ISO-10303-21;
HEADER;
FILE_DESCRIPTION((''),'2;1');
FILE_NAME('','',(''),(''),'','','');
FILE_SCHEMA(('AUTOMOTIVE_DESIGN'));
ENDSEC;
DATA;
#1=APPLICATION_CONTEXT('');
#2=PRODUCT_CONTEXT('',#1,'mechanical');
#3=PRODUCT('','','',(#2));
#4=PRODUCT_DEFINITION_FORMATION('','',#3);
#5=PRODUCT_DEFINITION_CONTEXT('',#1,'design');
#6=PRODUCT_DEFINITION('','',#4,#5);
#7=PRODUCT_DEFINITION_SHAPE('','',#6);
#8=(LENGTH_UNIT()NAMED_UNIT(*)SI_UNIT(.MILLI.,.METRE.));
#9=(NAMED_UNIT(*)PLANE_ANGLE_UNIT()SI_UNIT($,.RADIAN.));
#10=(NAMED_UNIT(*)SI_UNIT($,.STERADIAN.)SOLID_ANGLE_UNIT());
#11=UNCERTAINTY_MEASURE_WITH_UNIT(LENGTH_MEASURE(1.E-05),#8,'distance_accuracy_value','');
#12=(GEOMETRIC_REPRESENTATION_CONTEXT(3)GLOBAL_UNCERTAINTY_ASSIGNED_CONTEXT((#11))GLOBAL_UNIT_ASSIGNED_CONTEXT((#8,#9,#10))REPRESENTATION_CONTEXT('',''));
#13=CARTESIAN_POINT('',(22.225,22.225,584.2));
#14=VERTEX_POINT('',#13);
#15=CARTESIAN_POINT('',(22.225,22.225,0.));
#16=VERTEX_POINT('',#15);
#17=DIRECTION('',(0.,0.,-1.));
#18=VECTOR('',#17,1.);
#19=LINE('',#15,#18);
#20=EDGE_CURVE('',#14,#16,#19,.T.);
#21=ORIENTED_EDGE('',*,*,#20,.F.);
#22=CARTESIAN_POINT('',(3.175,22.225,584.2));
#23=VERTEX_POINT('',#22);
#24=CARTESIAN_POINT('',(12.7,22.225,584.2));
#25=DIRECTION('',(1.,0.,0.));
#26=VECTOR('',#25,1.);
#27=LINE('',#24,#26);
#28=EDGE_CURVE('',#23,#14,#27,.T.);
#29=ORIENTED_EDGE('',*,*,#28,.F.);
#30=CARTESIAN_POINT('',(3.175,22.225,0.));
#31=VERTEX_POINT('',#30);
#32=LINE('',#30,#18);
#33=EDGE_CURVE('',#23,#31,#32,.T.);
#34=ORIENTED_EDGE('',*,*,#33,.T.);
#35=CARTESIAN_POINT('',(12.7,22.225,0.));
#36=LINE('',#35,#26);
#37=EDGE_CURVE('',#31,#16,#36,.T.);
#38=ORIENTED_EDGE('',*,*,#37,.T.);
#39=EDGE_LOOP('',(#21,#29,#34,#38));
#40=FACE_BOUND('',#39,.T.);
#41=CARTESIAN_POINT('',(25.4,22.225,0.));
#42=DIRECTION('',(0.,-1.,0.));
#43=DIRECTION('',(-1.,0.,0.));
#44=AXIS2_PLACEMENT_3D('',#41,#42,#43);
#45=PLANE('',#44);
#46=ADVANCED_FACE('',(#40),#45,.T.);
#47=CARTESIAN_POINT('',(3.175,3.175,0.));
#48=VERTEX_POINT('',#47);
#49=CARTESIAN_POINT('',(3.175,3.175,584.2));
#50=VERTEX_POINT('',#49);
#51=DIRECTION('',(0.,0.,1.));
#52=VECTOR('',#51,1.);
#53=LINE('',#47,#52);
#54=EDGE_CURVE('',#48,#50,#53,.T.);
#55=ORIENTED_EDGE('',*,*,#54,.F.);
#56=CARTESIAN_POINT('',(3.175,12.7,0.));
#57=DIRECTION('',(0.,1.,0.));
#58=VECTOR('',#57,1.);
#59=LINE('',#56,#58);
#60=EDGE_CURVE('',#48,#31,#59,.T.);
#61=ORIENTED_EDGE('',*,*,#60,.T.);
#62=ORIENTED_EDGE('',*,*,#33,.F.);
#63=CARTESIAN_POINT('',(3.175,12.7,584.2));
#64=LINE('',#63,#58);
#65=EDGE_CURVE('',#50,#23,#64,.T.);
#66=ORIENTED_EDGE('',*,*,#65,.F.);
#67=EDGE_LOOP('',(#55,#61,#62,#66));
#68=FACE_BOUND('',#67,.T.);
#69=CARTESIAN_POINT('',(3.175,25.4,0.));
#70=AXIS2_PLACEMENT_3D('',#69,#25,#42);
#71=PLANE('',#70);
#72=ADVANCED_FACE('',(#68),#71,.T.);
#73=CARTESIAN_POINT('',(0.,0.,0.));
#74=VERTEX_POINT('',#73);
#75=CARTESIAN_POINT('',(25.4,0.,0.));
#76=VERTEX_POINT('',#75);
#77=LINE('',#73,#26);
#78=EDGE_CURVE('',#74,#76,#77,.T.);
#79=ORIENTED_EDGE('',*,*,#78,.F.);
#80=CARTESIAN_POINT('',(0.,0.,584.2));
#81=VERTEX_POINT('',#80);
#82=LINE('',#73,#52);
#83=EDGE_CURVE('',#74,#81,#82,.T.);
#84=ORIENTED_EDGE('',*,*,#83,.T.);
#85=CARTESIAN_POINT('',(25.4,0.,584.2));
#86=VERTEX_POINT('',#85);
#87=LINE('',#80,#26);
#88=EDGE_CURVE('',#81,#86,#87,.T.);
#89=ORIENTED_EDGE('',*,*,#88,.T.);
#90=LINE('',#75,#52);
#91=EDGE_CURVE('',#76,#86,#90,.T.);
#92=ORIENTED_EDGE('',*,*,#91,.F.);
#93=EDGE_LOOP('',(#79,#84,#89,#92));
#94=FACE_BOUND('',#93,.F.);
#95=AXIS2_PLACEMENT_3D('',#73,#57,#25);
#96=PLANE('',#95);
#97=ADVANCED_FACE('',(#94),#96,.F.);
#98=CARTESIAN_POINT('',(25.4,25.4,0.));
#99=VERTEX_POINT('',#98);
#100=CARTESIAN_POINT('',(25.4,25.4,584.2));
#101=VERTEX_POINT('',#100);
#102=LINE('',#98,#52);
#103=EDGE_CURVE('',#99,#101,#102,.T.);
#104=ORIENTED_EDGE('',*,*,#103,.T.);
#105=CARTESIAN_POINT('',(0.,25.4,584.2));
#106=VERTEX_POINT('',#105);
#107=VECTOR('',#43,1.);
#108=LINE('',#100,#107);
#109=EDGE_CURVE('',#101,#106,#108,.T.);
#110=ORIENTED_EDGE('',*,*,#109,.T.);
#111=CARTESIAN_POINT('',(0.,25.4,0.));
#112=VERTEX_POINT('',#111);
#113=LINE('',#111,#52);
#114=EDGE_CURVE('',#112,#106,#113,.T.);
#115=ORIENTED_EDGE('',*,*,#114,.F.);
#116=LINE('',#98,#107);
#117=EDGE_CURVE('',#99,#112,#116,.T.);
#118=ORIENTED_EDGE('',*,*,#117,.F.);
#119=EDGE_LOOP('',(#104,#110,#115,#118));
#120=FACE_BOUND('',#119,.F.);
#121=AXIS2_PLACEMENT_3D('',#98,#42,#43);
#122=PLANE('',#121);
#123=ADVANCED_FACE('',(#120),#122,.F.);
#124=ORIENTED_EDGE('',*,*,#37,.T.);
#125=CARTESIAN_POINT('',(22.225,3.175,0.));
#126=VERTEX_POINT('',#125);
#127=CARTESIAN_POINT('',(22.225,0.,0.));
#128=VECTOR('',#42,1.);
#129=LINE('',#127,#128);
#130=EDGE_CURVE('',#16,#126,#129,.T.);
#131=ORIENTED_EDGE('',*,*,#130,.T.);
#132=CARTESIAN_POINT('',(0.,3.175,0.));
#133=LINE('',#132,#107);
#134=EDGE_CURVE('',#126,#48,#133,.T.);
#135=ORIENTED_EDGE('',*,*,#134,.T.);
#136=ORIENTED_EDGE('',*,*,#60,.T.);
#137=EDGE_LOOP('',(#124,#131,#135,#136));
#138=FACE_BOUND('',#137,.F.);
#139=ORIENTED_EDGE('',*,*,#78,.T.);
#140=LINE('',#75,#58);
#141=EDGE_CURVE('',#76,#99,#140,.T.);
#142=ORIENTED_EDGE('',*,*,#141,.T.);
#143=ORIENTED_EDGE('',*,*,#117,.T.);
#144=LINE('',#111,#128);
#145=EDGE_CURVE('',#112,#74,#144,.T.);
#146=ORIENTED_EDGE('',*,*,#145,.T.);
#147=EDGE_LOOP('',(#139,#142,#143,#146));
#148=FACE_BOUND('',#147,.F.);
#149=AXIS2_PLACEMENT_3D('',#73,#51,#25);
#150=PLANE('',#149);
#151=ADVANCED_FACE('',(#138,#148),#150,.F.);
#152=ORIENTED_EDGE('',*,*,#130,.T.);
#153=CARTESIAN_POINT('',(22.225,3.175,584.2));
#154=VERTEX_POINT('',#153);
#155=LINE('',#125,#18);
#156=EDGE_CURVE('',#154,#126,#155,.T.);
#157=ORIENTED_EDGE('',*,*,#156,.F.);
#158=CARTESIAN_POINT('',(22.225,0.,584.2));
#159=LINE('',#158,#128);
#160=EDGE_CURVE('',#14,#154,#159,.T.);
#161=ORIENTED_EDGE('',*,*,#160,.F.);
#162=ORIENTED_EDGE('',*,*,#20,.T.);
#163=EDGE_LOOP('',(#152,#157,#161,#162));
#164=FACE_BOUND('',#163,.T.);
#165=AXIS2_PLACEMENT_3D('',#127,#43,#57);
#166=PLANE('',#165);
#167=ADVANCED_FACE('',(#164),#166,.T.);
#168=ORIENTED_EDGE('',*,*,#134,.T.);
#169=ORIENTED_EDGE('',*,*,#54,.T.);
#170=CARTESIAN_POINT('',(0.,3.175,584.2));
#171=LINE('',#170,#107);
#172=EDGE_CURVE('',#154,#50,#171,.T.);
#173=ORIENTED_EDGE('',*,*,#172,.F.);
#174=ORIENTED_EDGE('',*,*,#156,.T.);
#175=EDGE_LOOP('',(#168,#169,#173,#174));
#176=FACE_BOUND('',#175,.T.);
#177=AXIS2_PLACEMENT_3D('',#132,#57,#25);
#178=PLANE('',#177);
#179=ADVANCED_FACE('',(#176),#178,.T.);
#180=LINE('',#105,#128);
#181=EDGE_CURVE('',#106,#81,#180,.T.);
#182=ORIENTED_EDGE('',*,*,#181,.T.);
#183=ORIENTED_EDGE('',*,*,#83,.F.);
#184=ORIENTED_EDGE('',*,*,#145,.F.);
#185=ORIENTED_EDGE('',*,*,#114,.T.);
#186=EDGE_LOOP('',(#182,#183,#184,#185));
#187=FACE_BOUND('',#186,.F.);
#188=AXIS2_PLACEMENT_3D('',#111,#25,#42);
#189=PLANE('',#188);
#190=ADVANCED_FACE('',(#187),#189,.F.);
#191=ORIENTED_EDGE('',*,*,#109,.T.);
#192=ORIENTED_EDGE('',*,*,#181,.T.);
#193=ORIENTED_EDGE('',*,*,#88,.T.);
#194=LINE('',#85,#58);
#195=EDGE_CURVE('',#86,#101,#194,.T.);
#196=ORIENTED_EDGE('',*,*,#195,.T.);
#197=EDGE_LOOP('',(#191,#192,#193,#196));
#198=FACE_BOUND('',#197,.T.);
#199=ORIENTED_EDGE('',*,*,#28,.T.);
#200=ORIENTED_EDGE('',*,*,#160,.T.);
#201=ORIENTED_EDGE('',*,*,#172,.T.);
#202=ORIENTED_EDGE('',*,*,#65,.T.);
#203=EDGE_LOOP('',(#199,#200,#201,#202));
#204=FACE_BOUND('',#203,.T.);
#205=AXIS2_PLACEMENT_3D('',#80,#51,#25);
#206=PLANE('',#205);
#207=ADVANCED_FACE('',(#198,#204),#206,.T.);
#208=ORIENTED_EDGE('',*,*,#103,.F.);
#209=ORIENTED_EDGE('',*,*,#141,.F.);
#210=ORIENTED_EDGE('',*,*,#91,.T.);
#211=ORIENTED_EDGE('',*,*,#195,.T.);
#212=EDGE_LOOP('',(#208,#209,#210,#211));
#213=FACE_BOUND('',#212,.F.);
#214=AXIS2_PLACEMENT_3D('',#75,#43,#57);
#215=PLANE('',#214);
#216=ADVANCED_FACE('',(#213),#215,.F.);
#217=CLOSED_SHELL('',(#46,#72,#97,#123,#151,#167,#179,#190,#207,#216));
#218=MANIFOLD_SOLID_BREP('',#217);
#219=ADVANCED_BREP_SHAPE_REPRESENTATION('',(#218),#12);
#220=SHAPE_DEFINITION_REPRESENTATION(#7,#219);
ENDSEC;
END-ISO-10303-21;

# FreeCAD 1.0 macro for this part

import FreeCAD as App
import Part
import Sketcher
from FreeCAD import Vector
Q = App.Units.Quantity


def faces_at(feature, points):
    """Names of the faces that lie closest to the given points."""
    faces = feature.Shape.Faces
    near = lambda p: min(range(len(faces)), key=lambda i: faces[i].distToShape(Part.Vertex(*p))[0])
    return sorted({f"Face{near(p) + 1}" for p in points})

doc = App.newDocument("Part")
body = doc.addObject("PartDesign::Body", "Body")

# Sketch on XY plane
sketch1 = doc.addObject("Sketcher::SketchObject", "Sketch")
body.addObject(sketch1)
sketch1.AttachmentSupport = (doc.XY_Plane, [""])
sketch1.MapMode = "FlatFace"
sketch1.addGeometry(Part.LineSegment(Vector(0, 25, 0), Vector(0, 0, 0)), False)
sketch1.addGeometry(Part.LineSegment(Vector(0, 0, 0), Vector(25, 0, 0)), False)
sketch1.addGeometry(Part.LineSegment(Vector(25, 0, 0), Vector(25, 25, 0)), False)
sketch1.addGeometry(Part.LineSegment(Vector(25, 25, 0), Vector(0, 25, 0)), False)
sketch1.addConstraint(Sketcher.Constraint("Coincident", 0, 2, 1, 1))
sketch1.addConstraint(Sketcher.Constraint("Coincident", 1, 2, 2, 1))
sketch1.addConstraint(Sketcher.Constraint("Coincident", 2, 2, 3, 1))
sketch1.addConstraint(Sketcher.Constraint("Coincident", 3, 2, 0, 1))
sketch1.addConstraint(Sketcher.Constraint("Vertical", 0))
sketch1.addConstraint(Sketcher.Constraint("Horizontal", 1))
sketch1.addConstraint(Sketcher.Constraint("Vertical", 2))
sketch1.addConstraint(Sketcher.Constraint("Horizontal", 3))
sketch1.addConstraint(Sketcher.Constraint("Coincident", 0, 2, -1, 1))
sketch1.addConstraint(Sketcher.Constraint("Equal", 3, 0))
sketch1.addConstraint(Sketcher.Constraint("DistanceX", 1, 1, 1, 2, Q("1 in")))
pad1 = doc.addObject("PartDesign::Pad", "Pad")
body.addObject(pad1)
pad1.Profile = sketch1
pad1.Length = Q("23 in")
doc.recompute()

thickness = doc.addObject("PartDesign::Thickness", "Thickness")
body.addObject(thickness)
thickness.Base = (pad1, faces_at(pad1, [(8.467, 16.933, 0), (8.467, 16.933, 584.2)]))
thickness.Value = Q("0.125 in")
thickness.Reversed = True
thickness.Join = "Intersection"

doc.recompute()
